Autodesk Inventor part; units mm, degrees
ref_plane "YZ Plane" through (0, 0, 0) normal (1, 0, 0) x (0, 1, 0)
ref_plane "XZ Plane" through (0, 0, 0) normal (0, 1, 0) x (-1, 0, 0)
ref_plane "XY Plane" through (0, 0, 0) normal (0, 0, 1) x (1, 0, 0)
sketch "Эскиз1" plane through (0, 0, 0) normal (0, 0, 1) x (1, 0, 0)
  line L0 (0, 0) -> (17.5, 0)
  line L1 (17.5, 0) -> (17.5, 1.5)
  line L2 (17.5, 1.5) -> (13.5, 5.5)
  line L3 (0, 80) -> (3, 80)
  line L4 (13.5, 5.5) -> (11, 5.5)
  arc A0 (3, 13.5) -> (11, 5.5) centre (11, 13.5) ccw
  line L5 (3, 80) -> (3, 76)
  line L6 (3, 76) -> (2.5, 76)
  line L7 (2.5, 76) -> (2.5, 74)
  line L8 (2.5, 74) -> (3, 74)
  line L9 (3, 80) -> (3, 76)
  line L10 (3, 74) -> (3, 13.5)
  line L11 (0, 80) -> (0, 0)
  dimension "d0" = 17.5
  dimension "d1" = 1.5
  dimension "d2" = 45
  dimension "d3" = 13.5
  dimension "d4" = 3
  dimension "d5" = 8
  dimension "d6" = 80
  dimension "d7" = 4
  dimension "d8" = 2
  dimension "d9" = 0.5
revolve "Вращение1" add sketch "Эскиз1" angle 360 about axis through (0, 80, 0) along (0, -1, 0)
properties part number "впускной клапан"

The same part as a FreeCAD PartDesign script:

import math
import FreeCAD as App
import Part
import Sketcher

V = App.Vector
Q = App.Units.Quantity

doc = App.newDocument("Part")
body = doc.addObject("PartDesign::Body", "Body")

# Sketch on XY plane
sketch1 = doc.addObject("Sketcher::SketchObject", "Sketch")
body.addObject(sketch1)
sketch1.AttachmentSupport = (doc.XY_Plane, [""])
sketch1.MapMode = "FlatFace"
sketch1.addGeometry(Part.LineSegment(V(0, 80, 0), V(0, 0, 0)), False)
sketch1.addGeometry(Part.LineSegment(V(0, 0, 0), V(17.5, 0, 0)), False)
sketch1.addGeometry(Part.LineSegment(V(17.5, 0, 0), V(17.5, 1.5, 0)), False)
sketch1.addGeometry(Part.LineSegment(V(17.5, 1.5, 0), V(13.5, 5.5, 0)), False)
sketch1.addGeometry(Part.LineSegment(V(13.5, 5.5, 0), V(11, 5.5, 0)), False)
sketch1.addGeometry(Part.ArcOfCircle(Part.Circle(V(11, 13.5, 0), V(0, 0, 1), 8), math.radians(180), math.radians(270)), False)
sketch1.addGeometry(Part.LineSegment(V(3, 13.5, 0), V(3, 74, 0)), False)
sketch1.addGeometry(Part.LineSegment(V(3, 74, 0), V(2.5, 74, 0)), False)
sketch1.addGeometry(Part.LineSegment(V(2.5, 74, 0), V(2.5, 76, 0)), False)
sketch1.addGeometry(Part.LineSegment(V(2.5, 76, 0), V(3, 76, 0)), False)
sketch1.addGeometry(Part.LineSegment(V(3, 76, 0), V(3, 80, 0)), False)
sketch1.addGeometry(Part.LineSegment(V(3, 80, 0), V(0, 80, 0)), False)
sketch1.addConstraint(Sketcher.Constraint("Coincident", 0, 2, 1, 1))
sketch1.addConstraint(Sketcher.Constraint("Coincident", 1, 2, 2, 1))
sketch1.addConstraint(Sketcher.Constraint("Coincident", 2, 2, 3, 1))
sketch1.addConstraint(Sketcher.Constraint("Coincident", 3, 2, 4, 1))
sketch1.addConstraint(Sketcher.Constraint("Tangent", 4, 2, 5, 2))
sketch1.addConstraint(Sketcher.Constraint("Tangent", 5, 1, 6, 1))
sketch1.addConstraint(Sketcher.Constraint("Coincident", 6, 2, 7, 1))
sketch1.addConstraint(Sketcher.Constraint("Coincident", 7, 2, 8, 1))
sketch1.addConstraint(Sketcher.Constraint("Coincident", 8, 2, 9, 1))
sketch1.addConstraint(Sketcher.Constraint("Coincident", 9, 2, 10, 1))
sketch1.addConstraint(Sketcher.Constraint("Coincident", 10, 2, 11, 1))
sketch1.addConstraint(Sketcher.Constraint("Coincident", 11, 2, 0, 1))
sketch1.addConstraint(Sketcher.Constraint("Vertical", 0))
sketch1.addConstraint(Sketcher.Constraint("Horizontal", 1))
sketch1.addConstraint(Sketcher.Constraint("Vertical", 2))
sketch1.addConstraint(Sketcher.Constraint("Horizontal", 4))
sketch1.addConstraint(Sketcher.Constraint("Vertical", 6))
sketch1.addConstraint(Sketcher.Constraint("Horizontal", 7))
sketch1.addConstraint(Sketcher.Constraint("Vertical", 8))
sketch1.addConstraint(Sketcher.Constraint("Horizontal", 9))
sketch1.addConstraint(Sketcher.Constraint("Vertical", 10))
sketch1.addConstraint(Sketcher.Constraint("Horizontal", 11))
sketch1.addConstraint(Sketcher.Constraint("Coincident", 0, 2, -1, 1))
sketch1.addConstraint(Sketcher.Constraint("Vertical", 6, 2, 9, 2))
sketch1.addConstraint(Sketcher.Constraint("Radius", 5, Q("8 mm")))
sketch1.addConstraint(Sketcher.Constraint("DistanceX", 11, 2, 11, 1, Q("3 mm")))
sketch1.addConstraint(Sketcher.Constraint("DistanceY", 0, 2, 0, 1, Q("80 mm")))
sketch1.addConstraint(Sketcher.Constraint("DistanceY", 8, 1, 8, 2, Q("2 mm")))
sketch1.addConstraint(Sketcher.Constraint("DistanceY", 10, 1, 10, 2, Q("4 mm")))
sketch1.addConstraint(Sketcher.Constraint("DistanceX", 1, 1, 1, 2, Q("17.5 mm")))
sketch1.addConstraint(Sketcher.Constraint("DistanceX", 7, 2, 7, 1, Q("0.5 mm")))
sketch1.addConstraint(Sketcher.Constraint("DistanceY", 2, 1, 2, 2, Q("1.5 mm")))
sketch1.addConstraint(Sketcher.Constraint("DistanceX", 3, 2, 2, 2, Q("4 mm")))
sketch1.addConstraint(Sketcher.Constraint("DistanceY", 2, 2, 3, 2, Q("4 mm")))
revolution = doc.addObject("PartDesign::Revolution", "Revolution")
body.addObject(revolution)
revolution.Profile = sketch1
revolution.ReferenceAxis = (sketch1, ["V_Axis"])
revolution.Angle = 360

doc.recompute()
